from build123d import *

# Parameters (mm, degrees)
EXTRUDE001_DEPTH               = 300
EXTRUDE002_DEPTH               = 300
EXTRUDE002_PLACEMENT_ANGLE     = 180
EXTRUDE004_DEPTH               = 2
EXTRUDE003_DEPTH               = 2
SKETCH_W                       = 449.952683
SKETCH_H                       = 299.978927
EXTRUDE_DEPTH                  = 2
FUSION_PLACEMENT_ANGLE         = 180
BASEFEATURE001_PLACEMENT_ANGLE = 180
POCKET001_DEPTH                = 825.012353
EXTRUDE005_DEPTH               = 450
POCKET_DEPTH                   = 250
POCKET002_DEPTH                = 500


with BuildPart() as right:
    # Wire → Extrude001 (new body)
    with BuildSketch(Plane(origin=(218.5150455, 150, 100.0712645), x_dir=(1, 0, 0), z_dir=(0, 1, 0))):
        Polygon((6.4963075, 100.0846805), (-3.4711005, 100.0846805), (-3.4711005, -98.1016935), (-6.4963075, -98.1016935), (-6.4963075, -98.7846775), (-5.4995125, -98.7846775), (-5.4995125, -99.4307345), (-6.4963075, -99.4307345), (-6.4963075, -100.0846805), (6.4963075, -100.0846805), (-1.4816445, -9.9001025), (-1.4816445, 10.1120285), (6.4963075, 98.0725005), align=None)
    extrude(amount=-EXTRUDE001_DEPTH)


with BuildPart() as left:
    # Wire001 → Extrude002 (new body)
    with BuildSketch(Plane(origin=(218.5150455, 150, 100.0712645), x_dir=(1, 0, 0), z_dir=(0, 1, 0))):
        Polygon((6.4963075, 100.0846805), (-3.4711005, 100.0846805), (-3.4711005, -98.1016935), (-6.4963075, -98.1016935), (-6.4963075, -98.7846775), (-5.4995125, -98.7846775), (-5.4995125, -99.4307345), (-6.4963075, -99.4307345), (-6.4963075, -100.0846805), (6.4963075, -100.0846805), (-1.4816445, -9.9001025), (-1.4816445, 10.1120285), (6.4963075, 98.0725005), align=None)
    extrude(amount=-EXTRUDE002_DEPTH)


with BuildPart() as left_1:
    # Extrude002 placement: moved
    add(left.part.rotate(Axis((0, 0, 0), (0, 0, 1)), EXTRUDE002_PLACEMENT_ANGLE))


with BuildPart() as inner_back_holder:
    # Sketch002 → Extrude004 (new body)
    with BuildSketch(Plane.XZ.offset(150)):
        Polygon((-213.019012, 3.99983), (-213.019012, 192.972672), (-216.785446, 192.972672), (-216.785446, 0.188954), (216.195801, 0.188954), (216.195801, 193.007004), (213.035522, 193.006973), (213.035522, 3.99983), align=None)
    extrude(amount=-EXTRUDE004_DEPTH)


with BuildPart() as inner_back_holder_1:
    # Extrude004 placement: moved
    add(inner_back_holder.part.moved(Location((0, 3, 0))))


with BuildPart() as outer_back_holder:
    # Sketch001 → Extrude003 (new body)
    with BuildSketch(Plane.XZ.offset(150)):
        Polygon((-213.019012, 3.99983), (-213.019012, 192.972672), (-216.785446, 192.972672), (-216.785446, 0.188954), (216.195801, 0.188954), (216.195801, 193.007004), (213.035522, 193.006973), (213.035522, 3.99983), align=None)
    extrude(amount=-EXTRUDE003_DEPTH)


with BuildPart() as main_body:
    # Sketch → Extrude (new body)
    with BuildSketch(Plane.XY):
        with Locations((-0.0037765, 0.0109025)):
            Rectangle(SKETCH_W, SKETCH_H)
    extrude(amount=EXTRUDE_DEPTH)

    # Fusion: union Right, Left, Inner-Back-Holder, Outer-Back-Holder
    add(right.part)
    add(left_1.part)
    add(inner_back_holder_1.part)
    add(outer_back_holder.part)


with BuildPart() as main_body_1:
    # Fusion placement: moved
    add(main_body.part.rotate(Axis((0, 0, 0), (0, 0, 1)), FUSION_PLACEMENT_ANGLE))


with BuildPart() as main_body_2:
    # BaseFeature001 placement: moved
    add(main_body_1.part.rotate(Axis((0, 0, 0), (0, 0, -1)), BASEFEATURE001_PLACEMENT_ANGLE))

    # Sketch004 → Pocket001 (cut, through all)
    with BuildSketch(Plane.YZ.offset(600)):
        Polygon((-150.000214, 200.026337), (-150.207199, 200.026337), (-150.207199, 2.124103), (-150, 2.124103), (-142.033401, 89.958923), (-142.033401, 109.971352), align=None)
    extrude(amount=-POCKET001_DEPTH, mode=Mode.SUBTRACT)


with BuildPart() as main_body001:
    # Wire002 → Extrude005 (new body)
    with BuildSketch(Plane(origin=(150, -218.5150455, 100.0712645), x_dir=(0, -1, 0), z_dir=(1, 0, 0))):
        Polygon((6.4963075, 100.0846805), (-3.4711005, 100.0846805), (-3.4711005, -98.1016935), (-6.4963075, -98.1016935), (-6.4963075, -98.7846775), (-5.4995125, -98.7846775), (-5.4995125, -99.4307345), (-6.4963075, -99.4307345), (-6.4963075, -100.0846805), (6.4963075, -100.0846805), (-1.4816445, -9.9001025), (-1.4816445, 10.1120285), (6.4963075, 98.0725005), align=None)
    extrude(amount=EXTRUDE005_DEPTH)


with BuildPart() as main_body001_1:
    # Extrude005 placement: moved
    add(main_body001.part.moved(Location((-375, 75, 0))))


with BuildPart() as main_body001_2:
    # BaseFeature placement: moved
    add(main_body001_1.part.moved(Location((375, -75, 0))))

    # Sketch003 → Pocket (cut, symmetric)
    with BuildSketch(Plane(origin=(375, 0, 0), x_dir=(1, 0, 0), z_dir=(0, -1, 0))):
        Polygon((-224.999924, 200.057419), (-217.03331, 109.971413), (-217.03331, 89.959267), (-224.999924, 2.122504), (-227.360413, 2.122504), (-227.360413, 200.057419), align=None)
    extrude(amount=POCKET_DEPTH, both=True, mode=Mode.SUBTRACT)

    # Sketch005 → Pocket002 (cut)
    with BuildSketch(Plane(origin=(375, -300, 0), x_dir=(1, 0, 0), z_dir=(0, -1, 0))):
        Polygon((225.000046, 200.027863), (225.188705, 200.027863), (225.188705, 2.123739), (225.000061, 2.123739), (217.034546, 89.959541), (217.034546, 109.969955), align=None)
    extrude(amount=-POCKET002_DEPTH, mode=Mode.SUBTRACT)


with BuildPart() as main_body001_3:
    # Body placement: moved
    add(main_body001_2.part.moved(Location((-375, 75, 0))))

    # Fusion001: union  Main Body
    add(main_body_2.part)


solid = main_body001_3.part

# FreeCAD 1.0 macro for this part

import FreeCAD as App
import Part
import Sketcher
from FreeCAD import Vector
Q = App.Units.Quantity

doc = App.newDocument("Part")
body = doc.addObject("PartDesign::Body", "Body")

sketch1 = doc.addObject("Sketcher::SketchObject", "Sketch")
body.addObject(sketch1)
sketch1.AttachmentSupport = (doc.XZ_Plane, [""])
sketch1.MapMode = "FlatFace"
sketch1.AttachmentOffset = App.Placement(Vector(0, 0, -150), App.Rotation())
sketch1.addGeometry([
    Part.LineSegment(Vector(225, 0, 0), Vector(215, 0, 0)),
    Part.LineSegment(Vector(215, 0, 0), Vector(215, 198.2, 0)),
    Part.LineSegment(Vector(215, 198.2, 0), Vector(212, 198.2, 0)),
    Part.LineSegment(Vector(212, 198.2, 0), Vector(212, 198.9, 0)),
    Part.LineSegment(Vector(212, 198.9, 0), Vector(213, 198.9, 0)),
    Part.LineSegment(Vector(213, 198.9, 0), Vector(213, 199.5, 0)),
    Part.LineSegment(Vector(213, 199.5, 0), Vector(212, 199.5, 0)),
    Part.LineSegment(Vector(212, 199.5, 0), Vector(212, 200.2, 0)),
    Part.LineSegment(Vector(212, 200.2, 0), Vector(225, 200.2, 0)),
    Part.LineSegment(Vector(225, 200.2, 0), Vector(217, 110, 0)),
    Part.LineSegment(Vector(217, 110, 0), Vector(217, 90, 0)),
    Part.LineSegment(Vector(217, 90, 0), Vector(225, 2, 0)),
    Part.LineSegment(Vector(225, 2, 0), Vector(225, 0, 0)),
], False)
sketch1.addConstraint([
    Sketcher.Constraint("Coincident", 0, 2, 1, 1),
    Sketcher.Constraint("Coincident", 1, 2, 2, 1),
    Sketcher.Constraint("Coincident", 2, 2, 3, 1),
    Sketcher.Constraint("Coincident", 3, 2, 4, 1),
    Sketcher.Constraint("Coincident", 4, 2, 5, 1),
    Sketcher.Constraint("Coincident", 5, 2, 6, 1),
    Sketcher.Constraint("Coincident", 6, 2, 7, 1),
    Sketcher.Constraint("Coincident", 7, 2, 8, 1),
    Sketcher.Constraint("Coincident", 8, 2, 9, 1),
    Sketcher.Constraint("Coincident", 9, 2, 10, 1),
    Sketcher.Constraint("Coincident", 10, 2, 11, 1),
    Sketcher.Constraint("Coincident", 11, 2, 12, 1),
    Sketcher.Constraint("Coincident", 12, 2, 0, 1),
    Sketcher.Constraint("Horizontal", 0),
    Sketcher.Constraint("Vertical", 1),
    Sketcher.Constraint("Horizontal", 2),
    Sketcher.Constraint("Vertical", 3),
    Sketcher.Constraint("Horizontal", 4),
    Sketcher.Constraint("Vertical", 5),
    Sketcher.Constraint("Horizontal", 6),
    Sketcher.Constraint("Vertical", 7),
    Sketcher.Constraint("Horizontal", 8),
    Sketcher.Constraint("Vertical", 10),
    Sketcher.Constraint("Vertical", 12),
    Sketcher.Constraint("Vertical", 3, 2, 6, 2),
    Sketcher.Constraint("Vertical", 8, 2, 11, 2),
    Sketcher.Constraint("DistanceY", -1, 1, 5, 2, Q("199.501999 mm")),
    Sketcher.Constraint("DistanceX", 0, 2, 0, 1, Q("9.967408 mm")),
    Sketcher.Constraint("DistanceY", 10, 2, 10, 1, Q("20.012131 mm")),
    Sketcher.Constraint("DistanceY", 12, 2, 12, 1, Q("2.01218 mm")),
    Sketcher.Constraint("DistanceX", -1, 1, 9, 2, Q("217.033401 mm")),
    Sketcher.Constraint("Distance", 11, Q("88.321528 mm")),
    Sketcher.Constraint("DistanceX", 2, 2, 2, 1, Q("3.025207 mm")),
    Sketcher.Constraint("DistanceX", 4, 1, 4, 2, Q("0.996795 mm")),
    Sketcher.Constraint("DistanceY", 1, 1, 1, 2, Q("198.186374 mm")),
    Sketcher.Constraint("DistanceY", 3, 1, 3, 2, Q("0.682984 mm")),
    Sketcher.Constraint("DistanceY", 5, 1, 5, 2, Q("0.646057 mm")),
    Sketcher.Constraint("DistanceY", 7, 1, 7, 2, Q("0.653946 mm")),
    Sketcher.Constraint("DistanceX", -1, 1, 2, 2, Q("212.018738 mm")),
])
pad1 = doc.addObject("PartDesign::Pad", "Pad")
body.addObject(pad1)
pad1.Profile = sketch1
pad1.Length = 300
body2 = doc.addObject("PartDesign::Body", "Body001")

sketch2 = doc.addObject("Sketcher::SketchObject", "Sketch001")
body2.addObject(sketch2)
sketch2.AttachmentSupport = (doc.getObject("XZ_Plane001"), [""])
sketch2.MapMode = "FlatFace"
sketch2.AttachmentOffset = App.Placement(Vector(0, 0, -150), App.Rotation())
sketch2.addGeometry([
    Part.LineSegment(Vector(225, 0, 0), Vector(215, 0, 0)),
    Part.LineSegment(Vector(215, 0, 0), Vector(215, 198.2, 0)),
    Part.LineSegment(Vector(215, 198.2, 0), Vector(212, 198.2, 0)),
    Part.LineSegment(Vector(212, 198.2, 0), Vector(212, 198.9, 0)),
    Part.LineSegment(Vector(212, 198.9, 0), Vector(213, 198.9, 0)),
    Part.LineSegment(Vector(213, 198.9, 0), Vector(213, 199.5, 0)),
    Part.LineSegment(Vector(213, 199.5, 0), Vector(212, 199.5, 0)),
    Part.LineSegment(Vector(212, 199.5, 0), Vector(212, 200.2, 0)),
    Part.LineSegment(Vector(212, 200.2, 0), Vector(225, 200.2, 0)),
    Part.LineSegment(Vector(225, 200.2, 0), Vector(217, 110, 0)),
    Part.LineSegment(Vector(217, 110, 0), Vector(217, 90, 0)),
    Part.LineSegment(Vector(217, 90, 0), Vector(225, 2, 0)),
    Part.LineSegment(Vector(225, 2, 0), Vector(225, 0, 0)),
], False)
sketch2.addConstraint([
    Sketcher.Constraint("Coincident", 0, 2, 1, 1),
    Sketcher.Constraint("Coincident", 1, 2, 2, 1),
    Sketcher.Constraint("Coincident", 2, 2, 3, 1),
    Sketcher.Constraint("Coincident", 3, 2, 4, 1),
    Sketcher.Constraint("Coincident", 4, 2, 5, 1),
    Sketcher.Constraint("Coincident", 5, 2, 6, 1),
    Sketcher.Constraint("Coincident", 6, 2, 7, 1),
    Sketcher.Constraint("Coincident", 7, 2, 8, 1),
    Sketcher.Constraint("Coincident", 8, 2, 9, 1),
    Sketcher.Constraint("Coincident", 9, 2, 10, 1),
    Sketcher.Constraint("Coincident", 10, 2, 11, 1),
    Sketcher.Constraint("Coincident", 11, 2, 12, 1),
    Sketcher.Constraint("Coincident", 12, 2, 0, 1),
    Sketcher.Constraint("Horizontal", 0),
    Sketcher.Constraint("Vertical", 1),
    Sketcher.Constraint("Horizontal", 2),
    Sketcher.Constraint("Vertical", 3),
    Sketcher.Constraint("Horizontal", 4),
    Sketcher.Constraint("Vertical", 5),
    Sketcher.Constraint("Horizontal", 6),
    Sketcher.Constraint("Vertical", 7),
    Sketcher.Constraint("Horizontal", 8),
    Sketcher.Constraint("Vertical", 10),
    Sketcher.Constraint("Vertical", 12),
    Sketcher.Constraint("Vertical", 3, 2, 6, 2),
    Sketcher.Constraint("Vertical", 8, 2, 11, 2),
    Sketcher.Constraint("DistanceY", -1, 1, 5, 2, Q("199.501999 mm")),
    Sketcher.Constraint("DistanceX", 0, 2, 0, 1, Q("9.967408 mm")),
    Sketcher.Constraint("DistanceY", 10, 2, 10, 1, Q("20.012131 mm")),
    Sketcher.Constraint("DistanceY", 12, 2, 12, 1, Q("2.01218 mm")),
    Sketcher.Constraint("DistanceX", -1, 1, 9, 2, Q("217.033401 mm")),
    Sketcher.Constraint("Distance", 11, Q("88.321528 mm")),
    Sketcher.Constraint("DistanceX", 2, 2, 2, 1, Q("3.025207 mm")),
    Sketcher.Constraint("DistanceX", 4, 1, 4, 2, Q("0.996795 mm")),
    Sketcher.Constraint("DistanceY", 1, 1, 1, 2, Q("198.186374 mm")),
    Sketcher.Constraint("DistanceY", 3, 1, 3, 2, Q("0.682984 mm")),
    Sketcher.Constraint("DistanceY", 5, 1, 5, 2, Q("0.646057 mm")),
    Sketcher.Constraint("DistanceY", 7, 1, 7, 2, Q("0.653946 mm")),
    Sketcher.Constraint("DistanceX", -1, 1, 2, 2, Q("212.018738 mm")),
])
pad2 = doc.addObject("PartDesign::Pad", "Pad001")
body2.addObject(pad2)
pad2.Profile = sketch2
pad2.Length = 300
body3 = doc.addObject("PartDesign::Body", "Body002")
doc.recompute()

body2.Placement = App.Placement(Vector(0, 0, 0), App.Rotation(Vector(0, 0, 1), 180))
boolean = doc.addObject("PartDesign::Boolean", "Boolean")
body3.addObject(boolean)
boolean.Type = "Fuse"
boolean.addObjects([body2])
body4 = doc.addObject("PartDesign::Body", "Body003")

sketch3 = doc.addObject("Sketcher::SketchObject", "Sketch002")
body4.addObject(sketch3)
sketch3.AttachmentSupport = (doc.getObject("XZ_Plane003"), [""])
sketch3.MapMode = "FlatFace"
sketch3.AttachmentOffset = App.Placement(Vector(0, 0, 150), App.Rotation())
sketch3.addGeometry([
    Part.LineSegment(Vector(-213, 4, 0), Vector(-213, 193, 0)),
    Part.LineSegment(Vector(-213, 193, 0), Vector(-216.8, 193, 0)),
    Part.LineSegment(Vector(-216.8, 193, 0), Vector(-216.8, 0.2, 0)),
    Part.LineSegment(Vector(-216.8, 0.2, 0), Vector(216.2, 0.2, 0)),
    Part.LineSegment(Vector(216.2, 0.2, 0), Vector(216.2, 193, 0)),
    Part.LineSegment(Vector(216.2, 193, 0), Vector(213, 193, 0)),
    Part.LineSegment(Vector(213, 193, 0), Vector(213, 4, 0)),
    Part.LineSegment(Vector(213, 4, 0), Vector(-213, 4, 0)),
], False)
sketch3.addConstraint([
    Sketcher.Constraint("Coincident", 0, 2, 1, 1),
    Sketcher.Constraint("Coincident", 1, 2, 2, 1),
    Sketcher.Constraint("Coincident", 2, 2, 3, 1),
    Sketcher.Constraint("Coincident", 3, 2, 4, 1),
    Sketcher.Constraint("Coincident", 4, 2, 5, 1),
    Sketcher.Constraint("Coincident", 5, 2, 6, 1),
    Sketcher.Constraint("Coincident", 6, 2, 7, 1),
    Sketcher.Constraint("Coincident", 7, 2, 0, 1),
    Sketcher.Constraint("Vertical", 0),
    Sketcher.Constraint("Horizontal", 1),
    Sketcher.Constraint("Vertical", 2),
    Sketcher.Constraint("Horizontal", 3),
    Sketcher.Constraint("Vertical", 4),
    Sketcher.Constraint("Vertical", 6),
    Sketcher.Constraint("Horizontal", 7),
    Sketcher.Constraint("DistanceY", 0, 1, 0, 2, Q("188.972842 mm")),
    Sketcher.Constraint("DistanceY", 2, 2, 2, 1, Q("192.783718 mm")),
    Sketcher.Constraint("DistanceY", 4, 1, 4, 2, Q("192.81805 mm")),
    Sketcher.Constraint("DistanceX", -1, 1, 3, 2, Q("216.195801 mm")),
    Sketcher.Constraint("DistanceY", 0, 2, 5, 2, Q("0.034301 mm")),
    Sketcher.Constraint("Distance", 5, Q("3.160279 mm")),
    Sketcher.Constraint("DistanceX", 1, 2, 1, 1, Q("3.766434 mm")),
    Sketcher.Constraint("DistanceX", 3, 1, 3, 2, Q("432.981247 mm")),
    Sketcher.Constraint("DistanceY", -1, 1, 0, 2, Q("192.972672 mm")),
])
pad3 = doc.addObject("PartDesign::Pad", "Pad002")
body4.addObject(pad3)
pad3.Profile = sketch3
pad3.Length = 2
pad3.Reversed = True
body5 = doc.addObject("PartDesign::Body", "Body004")
doc.recompute()

body4.Placement = App.Placement(Vector(0, 3, 0), App.Rotation(Vector(0, 0, 1), 0))
boolean2 = doc.addObject("PartDesign::Boolean", "Boolean001")
body5.addObject(boolean2)
boolean2.Type = "Fuse"
boolean2.addObjects([body4])
body6 = doc.addObject("PartDesign::Body", "Body005")

sketch4 = doc.addObject("Sketcher::SketchObject", "Sketch003")
body6.addObject(sketch4)
sketch4.AttachmentSupport = (doc.getObject("XZ_Plane005"), [""])
sketch4.MapMode = "FlatFace"
sketch4.AttachmentOffset = App.Placement(Vector(0, 0, 150), App.Rotation())
sketch4.addGeometry([
    Part.LineSegment(Vector(-213, 4, 0), Vector(-213, 193, 0)),
    Part.LineSegment(Vector(-213, 193, 0), Vector(-216.8, 193, 0)),
    Part.LineSegment(Vector(-216.8, 193, 0), Vector(-216.8, 0.2, 0)),
    Part.LineSegment(Vector(-216.8, 0.2, 0), Vector(216.2, 0.2, 0)),
    Part.LineSegment(Vector(216.2, 0.2, 0), Vector(216.2, 193, 0)),
    Part.LineSegment(Vector(216.2, 193, 0), Vector(213, 193, 0)),
    Part.LineSegment(Vector(213, 193, 0), Vector(213, 4, 0)),
    Part.LineSegment(Vector(213, 4, 0), Vector(-213, 4, 0)),
], False)
sketch4.addConstraint([
    Sketcher.Constraint("Coincident", 0, 2, 1, 1),
    Sketcher.Constraint("Coincident", 1, 2, 2, 1),
    Sketcher.Constraint("Coincident", 2, 2, 3, 1),
    Sketcher.Constraint("Coincident", 3, 2, 4, 1),
    Sketcher.Constraint("Coincident", 4, 2, 5, 1),
    Sketcher.Constraint("Coincident", 5, 2, 6, 1),
    Sketcher.Constraint("Coincident", 6, 2, 7, 1),
    Sketcher.Constraint("Coincident", 7, 2, 0, 1),
    Sketcher.Constraint("Vertical", 0),
    Sketcher.Constraint("Horizontal", 1),
    Sketcher.Constraint("Vertical", 2),
    Sketcher.Constraint("Horizontal", 3),
    Sketcher.Constraint("Vertical", 4),
    Sketcher.Constraint("Vertical", 6),
    Sketcher.Constraint("Horizontal", 7),
    Sketcher.Constraint("DistanceY", 0, 1, 0, 2, Q("188.972842 mm")),
    Sketcher.Constraint("DistanceY", 2, 2, 2, 1, Q("192.783718 mm")),
    Sketcher.Constraint("DistanceY", 4, 1, 4, 2, Q("192.81805 mm")),
    Sketcher.Constraint("DistanceX", -1, 1, 3, 2, Q("216.195801 mm")),
    Sketcher.Constraint("DistanceY", 0, 2, 5, 2, Q("0.034301 mm")),
    Sketcher.Constraint("Distance", 5, Q("3.160279 mm")),
    Sketcher.Constraint("DistanceX", 1, 2, 1, 1, Q("3.766434 mm")),
    Sketcher.Constraint("DistanceX", 3, 1, 3, 2, Q("432.981247 mm")),
    Sketcher.Constraint("DistanceY", -1, 1, 0, 2, Q("192.972672 mm")),
])
pad4 = doc.addObject("PartDesign::Pad", "Pad003")
body6.addObject(pad4)
pad4.Profile = sketch4
pad4.Length = 2
pad4.Reversed = True
body7 = doc.addObject("PartDesign::Body", "Body006")

sketch5 = doc.addObject("Sketcher::SketchObject", "Sketch004")
body7.addObject(sketch5)
sketch5.AttachmentSupport = (doc.getObject("XY_Plane006"), [""])
sketch5.MapMode = "FlatFace"
sketch5.addGeometry([
    Part.LineSegment(Vector(-225, 150, 0), Vector(-225, -150, 0)),
    Part.LineSegment(Vector(-225, -150, 0), Vector(225, -150, 0)),
    Part.LineSegment(Vector(225, -150, 0), Vector(225, 150, 0)),
    Part.LineSegment(Vector(225, 150, 0), Vector(-225, 150, 0)),
], False)
sketch5.addConstraint([
    Sketcher.Constraint("Coincident", 0, 2, 1, 1),
    Sketcher.Constraint("Coincident", 1, 2, 2, 1),
    Sketcher.Constraint("Coincident", 2, 2, 3, 1),
    Sketcher.Constraint("Coincident", 3, 2, 0, 1),
    Sketcher.Constraint("Vertical", 0),
    Sketcher.Constraint("Horizontal", 1),
    Sketcher.Constraint("Vertical", 2),
    Sketcher.Constraint("Horizontal", 3),
    Sketcher.Constraint("DistanceX", 1, 1, 1, 2, Q("449.952683 mm")),
    Sketcher.Constraint("DistanceY", 0, 2, 0, 1, Q("299.978927 mm")),
    Sketcher.Constraint("DistanceX", 0, 2, -1, 1, Q("224.980118 mm")),
    Sketcher.Constraint("DistanceY", 0, 2, -1, 1, Q("149.978561 mm")),
])
pad5 = doc.addObject("PartDesign::Pad", "Pad004")
body7.addObject(pad5)
pad5.Profile = sketch5
pad5.Length = 2
doc.recompute()

boolean3 = doc.addObject("PartDesign::Boolean", "Boolean002")
body7.addObject(boolean3)
boolean3.Type = "Fuse"
boolean3.addObjects([body])
doc.recompute()

boolean4 = doc.addObject("PartDesign::Boolean", "Boolean003")
body7.addObject(boolean4)
boolean4.Type = "Fuse"
boolean4.addObjects([body3])
doc.recompute()

boolean5 = doc.addObject("PartDesign::Boolean", "Boolean004")
body7.addObject(boolean5)
boolean5.Type = "Fuse"
boolean5.addObjects([body5])
doc.recompute()

boolean6 = doc.addObject("PartDesign::Boolean", "Boolean005")
body7.addObject(boolean6)
boolean6.Type = "Fuse"
boolean6.addObjects([body6])
body8 = doc.addObject("PartDesign::Body", "Body007")
doc.recompute()

body7.Placement = App.Placement(Vector(0, 0, 0), App.Rotation(Vector(0, 0, 1), 180))
boolean7 = doc.addObject("PartDesign::Boolean", "Boolean006")
body8.addObject(boolean7)
boolean7.Type = "Fuse"
boolean7.addObjects([body7])
body9 = doc.addObject("PartDesign::Body", "Body008")
doc.recompute()

body8.Placement = App.Placement(Vector(0, 0, 0), App.Rotation(Vector(0, 0, -1), 180))
boolean8 = doc.addObject("PartDesign::Boolean", "Boolean007")
body9.addObject(boolean8)
boolean8.Type = "Fuse"
boolean8.addObjects([body8])

sketch6 = doc.addObject("Sketcher::SketchObject", "Sketch005")
body9.addObject(sketch6)
sketch6.AttachmentSupport = (doc.getObject("YZ_Plane008"), [""])
sketch6.MapMode = "FlatFace"
sketch6.AttachmentOffset = App.Placement(Vector(0, 0, 600), App.Rotation())
sketch6.addGeometry([
    Part.LineSegment(Vector(-150, 200.03, 0), Vector(-150.21, 200.03, 0)),
    Part.LineSegment(Vector(-150.21, 200.03, 0), Vector(-150.21, 2.12, 0)),
    Part.LineSegment(Vector(-150.21, 2.12, 0), Vector(-150, 2.12, 0)),
    Part.LineSegment(Vector(-150, 2.12, 0), Vector(-142.03, 89.96, 0)),
    Part.LineSegment(Vector(-142.03, 89.96, 0), Vector(-142.03, 109.97, 0)),
    Part.LineSegment(Vector(-142.03, 109.97, 0), Vector(-150, 200.03, 0)),
], False)
sketch6.addConstraint([
    Sketcher.Constraint("Coincident", 0, 2, 1, 1),
    Sketcher.Constraint("Coincident", 1, 2, 2, 1),
    Sketcher.Constraint("Coincident", 2, 2, 3, 1),
    Sketcher.Constraint("Coincident", 3, 2, 4, 1),
    Sketcher.Constraint("Coincident", 4, 2, 5, 1),
    Sketcher.Constraint("Coincident", 5, 2, 0, 1),
    Sketcher.Constraint("Horizontal", 0),
    Sketcher.Constraint("Vertical", 1),
    Sketcher.Constraint("Horizontal", 2),
    Sketcher.Constraint("Vertical", 4),
    Sketcher.Constraint("DistanceX", 2, 2, -1, 1, Q("150 mm")),
    Sketcher.Constraint("DistanceX", 2, 1, 2, 2, Q("0.207199 mm")),
    Sketcher.Constraint("DistanceY", 4, 1, 4, 2, Q("20.012429 mm")),
    Sketcher.Constraint("DistanceX", 3, 2, -1, 1, Q("142.033401 mm")),
    Sketcher.Constraint("DistanceX", 0, 2, 0, 1, Q("0.206985 mm")),
    Sketcher.Constraint("DistanceY", 1, 2, 1, 1, Q("197.902234 mm")),
    Sketcher.Constraint("DistanceY", -1, 1, 4, 2, Q("109.971352 mm")),
    Sketcher.Constraint("DistanceY", 2, 2, 3, 2, Q("87.83482 mm")),
])
pocket1 = doc.addObject("PartDesign::Pocket", "Pocket")
body9.addObject(pocket1)
pocket1.Profile = sketch6
pocket1.Type = "ThroughAll"
body10 = doc.addObject("PartDesign::Body", "Body009")

sketch7 = doc.addObject("Sketcher::SketchObject", "Sketch006")
body10.addObject(sketch7)
sketch7.AttachmentSupport = (doc.getObject("YZ_Plane009"), [""])
sketch7.MapMode = "FlatFace"
sketch7.AttachmentOffset = App.Placement(Vector(0, 0, 150), App.Rotation())
sketch7.addGeometry([
    Part.LineSegment(Vector(-225, 0, 0), Vector(-215, 0, 0)),
    Part.LineSegment(Vector(-215, 0, 0), Vector(-215, 198.2, 0)),
    Part.LineSegment(Vector(-215, 198.2, 0), Vector(-212, 198.2, 0)),
    Part.LineSegment(Vector(-212, 198.2, 0), Vector(-212, 198.9, 0)),
    Part.LineSegment(Vector(-212, 198.9, 0), Vector(-213, 198.9, 0)),
    Part.LineSegment(Vector(-213, 198.9, 0), Vector(-213, 199.5, 0)),
    Part.LineSegment(Vector(-213, 199.5, 0), Vector(-212, 199.5, 0)),
    Part.LineSegment(Vector(-212, 199.5, 0), Vector(-212, 200.2, 0)),
    Part.LineSegment(Vector(-212, 200.2, 0), Vector(-225, 200.2, 0)),
    Part.LineSegment(Vector(-225, 200.2, 0), Vector(-217, 110, 0)),
    Part.LineSegment(Vector(-217, 110, 0), Vector(-217, 90, 0)),
    Part.LineSegment(Vector(-217, 90, 0), Vector(-225, 2, 0)),
    Part.LineSegment(Vector(-225, 2, 0), Vector(-225, 0, 0)),
], False)
sketch7.addConstraint([
    Sketcher.Constraint("Coincident", 0, 2, 1, 1),
    Sketcher.Constraint("Coincident", 1, 2, 2, 1),
    Sketcher.Constraint("Coincident", 2, 2, 3, 1),
    Sketcher.Constraint("Coincident", 3, 2, 4, 1),
    Sketcher.Constraint("Coincident", 4, 2, 5, 1),
    Sketcher.Constraint("Coincident", 5, 2, 6, 1),
    Sketcher.Constraint("Coincident", 6, 2, 7, 1),
    Sketcher.Constraint("Coincident", 7, 2, 8, 1),
    Sketcher.Constraint("Coincident", 8, 2, 9, 1),
    Sketcher.Constraint("Coincident", 9, 2, 10, 1),
    Sketcher.Constraint("Coincident", 10, 2, 11, 1),
    Sketcher.Constraint("Coincident", 11, 2, 12, 1),
    Sketcher.Constraint("Coincident", 12, 2, 0, 1),
    Sketcher.Constraint("Horizontal", 0),
    Sketcher.Constraint("Vertical", 1),
    Sketcher.Constraint("Horizontal", 2),
    Sketcher.Constraint("Vertical", 3),
    Sketcher.Constraint("Horizontal", 4),
    Sketcher.Constraint("Vertical", 5),
    Sketcher.Constraint("Horizontal", 6),
    Sketcher.Constraint("Vertical", 7),
    Sketcher.Constraint("Horizontal", 8),
    Sketcher.Constraint("Vertical", 10),
    Sketcher.Constraint("Vertical", 12),
    Sketcher.Constraint("Vertical", 3, 2, 6, 2),
    Sketcher.Constraint("Vertical", 8, 2, 11, 2),
    Sketcher.Constraint("DistanceY", -1, 1, 5, 2, Q("199.501999 mm")),
    Sketcher.Constraint("DistanceX", 0, 1, 0, 2, Q("9.967408 mm")),
    Sketcher.Constraint("DistanceY", 10, 2, 10, 1, Q("20.012131 mm")),
    Sketcher.Constraint("DistanceY", 12, 2, 12, 1, Q("2.01218 mm")),
    Sketcher.Constraint("DistanceX", 9, 2, -1, 1, Q("217.033401 mm")),
    Sketcher.Constraint("Distance", 11, Q("88.321528 mm")),
    Sketcher.Constraint("DistanceX", 2, 1, 2, 2, Q("3.025207 mm")),
    Sketcher.Constraint("DistanceX", 4, 2, 4, 1, Q("0.996795 mm")),
    Sketcher.Constraint("DistanceY", 1, 1, 1, 2, Q("198.186374 mm")),
    Sketcher.Constraint("DistanceY", 3, 1, 3, 2, Q("0.682984 mm")),
    Sketcher.Constraint("DistanceY", 5, 1, 5, 2, Q("0.646057 mm")),
    Sketcher.Constraint("DistanceY", 7, 1, 7, 2, Q("0.653946 mm")),
    Sketcher.Constraint("DistanceX", 2, 2, -1, 1, Q("212.018738 mm")),
])
pad6 = doc.addObject("PartDesign::Pad", "Pad005")
body10.addObject(pad6)
pad6.Profile = sketch7
pad6.Length = 450
body11 = doc.addObject("PartDesign::Body", "Body010")
doc.recompute()

body10.Placement = App.Placement(Vector(-375, 75, 0), App.Rotation(Vector(0, 0, 1), 0))
boolean9 = doc.addObject("PartDesign::Boolean", "Boolean008")
body11.addObject(boolean9)
boolean9.Type = "Fuse"
boolean9.addObjects([body10])
body12 = doc.addObject("PartDesign::Body", "Body011")
doc.recompute()

body11.Placement = App.Placement(Vector(375, -75, 0), App.Rotation(Vector(0, 0, 1), 0))
boolean10 = doc.addObject("PartDesign::Boolean", "Boolean009")
body12.addObject(boolean10)
boolean10.Type = "Fuse"
boolean10.addObjects([body11])

sketch8 = doc.addObject("Sketcher::SketchObject", "Sketch007")
body12.addObject(sketch8)
sketch8.AttachmentSupport = (doc.getObject("XZ_Plane011"), [""])
sketch8.MapMode = "FlatFace"
sketch8.addGeometry([
    Part.LineSegment(Vector(158, 110, 0), Vector(150, 200.1, 0)),
    Part.LineSegment(Vector(150, 200.1, 0), Vector(147.6, 200.1, 0)),
    Part.LineSegment(Vector(147.6, 200.1, 0), Vector(147.6, 2.1, 0)),
    Part.LineSegment(Vector(147.6, 2.1, 0), Vector(150, 2.1, 0)),
    Part.LineSegment(Vector(150, 2.1, 0), Vector(158, 90, 0)),
    Part.LineSegment(Vector(158, 90, 0), Vector(158, 110, 0)),
], False)
sketch8.addConstraint([
    Sketcher.Constraint("Coincident", 0, 2, 1, 1),
    Sketcher.Constraint("Coincident", 1, 2, 2, 1),
    Sketcher.Constraint("Coincident", 2, 2, 3, 1),
    Sketcher.Constraint("Coincident", 3, 2, 4, 1),
    Sketcher.Constraint("Coincident", 4, 2, 5, 1),
    Sketcher.Constraint("Coincident", 5, 2, 0, 1),
    Sketcher.Constraint("Horizontal", 1),
    Sketcher.Constraint("Vertical", 2),
    Sketcher.Constraint("Horizontal", 3),
    Sketcher.Constraint("Vertical", 5),
    Sketcher.Constraint("Vertical", 0, 2, 3, 2),
    Sketcher.Constraint("Distance", 4, Q("88.197301 mm")),
    Sketcher.Constraint("DistanceX", 1, 2, 1, 1, Q("2.360489 mm")),
    Sketcher.Constraint("DistanceY", 2, 2, 2, 1, Q("197.934915 mm")),
    Sketcher.Constraint("DistanceY", 5, 1, 5, 2, Q("20.012146 mm")),
    Sketcher.Constraint("DistanceY", -1, 1, 0, 2, Q("200.057419 mm")),
    Sketcher.Constraint("DistanceX", -1, 1, 4, 2, Q("157.96669 mm")),
    Sketcher.Constraint("DistanceY", 3, 2, 5, 2, Q("107.848909 mm")),
])
pocket2 = doc.addObject("PartDesign::Pocket", "Pocket001")
body12.addObject(pocket2)
pocket2.Profile = sketch8
pocket2.Length = 500
pocket2.Midplane = True

sketch9 = doc.addObject("Sketcher::SketchObject", "Sketch008")
body12.addObject(sketch9)
sketch9.AttachmentSupport = (doc.getObject("XZ_Plane011"), [""])
sketch9.MapMode = "FlatFace"
sketch9.AttachmentOffset = App.Placement(Vector(0, 0, 300), App.Rotation())
sketch9.addGeometry([
    Part.LineSegment(Vector(600.19, 200.03, 0), Vector(600, 200.03, 0)),
    Part.LineSegment(Vector(600, 200.03, 0), Vector(592.03, 109.97, 0)),
    Part.LineSegment(Vector(592.03, 109.97, 0), Vector(592.03, 89.96, 0)),
    Part.LineSegment(Vector(592.03, 89.96, 0), Vector(600, 2.12, 0)),
    Part.LineSegment(Vector(600, 2.12, 0), Vector(600.19, 2.12, 0)),
    Part.LineSegment(Vector(600.19, 2.12, 0), Vector(600.19, 200.03, 0)),
], False)
sketch9.addConstraint([
    Sketcher.Constraint("Coincident", 0, 2, 1, 1),
    Sketcher.Constraint("Coincident", 1, 2, 2, 1),
    Sketcher.Constraint("Coincident", 2, 2, 3, 1),
    Sketcher.Constraint("Coincident", 3, 2, 4, 1),
    Sketcher.Constraint("Coincident", 4, 2, 5, 1),
    Sketcher.Constraint("Coincident", 5, 2, 0, 1),
    Sketcher.Constraint("Horizontal", 0),
    Sketcher.Constraint("Vertical", 2),
    Sketcher.Constraint("Horizontal", 4),
    Sketcher.Constraint("Vertical", 5),
    Sketcher.Constraint("DistanceX", 0, 2, 0, 1, Q("0.188659 mm")),
    Sketcher.Constraint("DistanceX", 1, 2, 0, 2, Q("7.9655 mm")),
    Sketcher.Constraint("DistanceY", 3, 2, 2, 2, Q("87.835802 mm")),
    Sketcher.Constraint("Distance", 1, Q("90.409491 mm")),
    Sketcher.Constraint("DistanceX", 4, 1, 4, 2, Q("0.188644 mm")),
    Sketcher.Constraint("DistanceY", 2, 2, 2, 1, Q("20.010414 mm")),
    Sketcher.Constraint("DistanceY", -1, 1, 2, 2, Q("89.959541 mm")),
    Sketcher.Constraint("DistanceX", -1, 1, 3, 2, Q("600.000061 mm")),
])
pocket3 = doc.addObject("PartDesign::Pocket", "Pocket002")
body12.addObject(pocket3)
pocket3.Profile = sketch9
pocket3.Length = 500
body13 = doc.addObject("PartDesign::Body", "Body012")
doc.recompute()

body12.Placement = App.Placement(Vector(-375, 75, 0), App.Rotation(Vector(0, 0, 1), 0))
boolean11 = doc.addObject("PartDesign::Boolean", "Boolean010")
body13.addObject(boolean11)
boolean11.Type = "Fuse"
boolean11.addObjects([body12])
doc.recompute()

boolean12 = doc.addObject("PartDesign::Boolean", "Boolean011")
body13.addObject(boolean12)
boolean12.Type = "Fuse"
boolean12.addObjects([body9])

doc.recompute()
